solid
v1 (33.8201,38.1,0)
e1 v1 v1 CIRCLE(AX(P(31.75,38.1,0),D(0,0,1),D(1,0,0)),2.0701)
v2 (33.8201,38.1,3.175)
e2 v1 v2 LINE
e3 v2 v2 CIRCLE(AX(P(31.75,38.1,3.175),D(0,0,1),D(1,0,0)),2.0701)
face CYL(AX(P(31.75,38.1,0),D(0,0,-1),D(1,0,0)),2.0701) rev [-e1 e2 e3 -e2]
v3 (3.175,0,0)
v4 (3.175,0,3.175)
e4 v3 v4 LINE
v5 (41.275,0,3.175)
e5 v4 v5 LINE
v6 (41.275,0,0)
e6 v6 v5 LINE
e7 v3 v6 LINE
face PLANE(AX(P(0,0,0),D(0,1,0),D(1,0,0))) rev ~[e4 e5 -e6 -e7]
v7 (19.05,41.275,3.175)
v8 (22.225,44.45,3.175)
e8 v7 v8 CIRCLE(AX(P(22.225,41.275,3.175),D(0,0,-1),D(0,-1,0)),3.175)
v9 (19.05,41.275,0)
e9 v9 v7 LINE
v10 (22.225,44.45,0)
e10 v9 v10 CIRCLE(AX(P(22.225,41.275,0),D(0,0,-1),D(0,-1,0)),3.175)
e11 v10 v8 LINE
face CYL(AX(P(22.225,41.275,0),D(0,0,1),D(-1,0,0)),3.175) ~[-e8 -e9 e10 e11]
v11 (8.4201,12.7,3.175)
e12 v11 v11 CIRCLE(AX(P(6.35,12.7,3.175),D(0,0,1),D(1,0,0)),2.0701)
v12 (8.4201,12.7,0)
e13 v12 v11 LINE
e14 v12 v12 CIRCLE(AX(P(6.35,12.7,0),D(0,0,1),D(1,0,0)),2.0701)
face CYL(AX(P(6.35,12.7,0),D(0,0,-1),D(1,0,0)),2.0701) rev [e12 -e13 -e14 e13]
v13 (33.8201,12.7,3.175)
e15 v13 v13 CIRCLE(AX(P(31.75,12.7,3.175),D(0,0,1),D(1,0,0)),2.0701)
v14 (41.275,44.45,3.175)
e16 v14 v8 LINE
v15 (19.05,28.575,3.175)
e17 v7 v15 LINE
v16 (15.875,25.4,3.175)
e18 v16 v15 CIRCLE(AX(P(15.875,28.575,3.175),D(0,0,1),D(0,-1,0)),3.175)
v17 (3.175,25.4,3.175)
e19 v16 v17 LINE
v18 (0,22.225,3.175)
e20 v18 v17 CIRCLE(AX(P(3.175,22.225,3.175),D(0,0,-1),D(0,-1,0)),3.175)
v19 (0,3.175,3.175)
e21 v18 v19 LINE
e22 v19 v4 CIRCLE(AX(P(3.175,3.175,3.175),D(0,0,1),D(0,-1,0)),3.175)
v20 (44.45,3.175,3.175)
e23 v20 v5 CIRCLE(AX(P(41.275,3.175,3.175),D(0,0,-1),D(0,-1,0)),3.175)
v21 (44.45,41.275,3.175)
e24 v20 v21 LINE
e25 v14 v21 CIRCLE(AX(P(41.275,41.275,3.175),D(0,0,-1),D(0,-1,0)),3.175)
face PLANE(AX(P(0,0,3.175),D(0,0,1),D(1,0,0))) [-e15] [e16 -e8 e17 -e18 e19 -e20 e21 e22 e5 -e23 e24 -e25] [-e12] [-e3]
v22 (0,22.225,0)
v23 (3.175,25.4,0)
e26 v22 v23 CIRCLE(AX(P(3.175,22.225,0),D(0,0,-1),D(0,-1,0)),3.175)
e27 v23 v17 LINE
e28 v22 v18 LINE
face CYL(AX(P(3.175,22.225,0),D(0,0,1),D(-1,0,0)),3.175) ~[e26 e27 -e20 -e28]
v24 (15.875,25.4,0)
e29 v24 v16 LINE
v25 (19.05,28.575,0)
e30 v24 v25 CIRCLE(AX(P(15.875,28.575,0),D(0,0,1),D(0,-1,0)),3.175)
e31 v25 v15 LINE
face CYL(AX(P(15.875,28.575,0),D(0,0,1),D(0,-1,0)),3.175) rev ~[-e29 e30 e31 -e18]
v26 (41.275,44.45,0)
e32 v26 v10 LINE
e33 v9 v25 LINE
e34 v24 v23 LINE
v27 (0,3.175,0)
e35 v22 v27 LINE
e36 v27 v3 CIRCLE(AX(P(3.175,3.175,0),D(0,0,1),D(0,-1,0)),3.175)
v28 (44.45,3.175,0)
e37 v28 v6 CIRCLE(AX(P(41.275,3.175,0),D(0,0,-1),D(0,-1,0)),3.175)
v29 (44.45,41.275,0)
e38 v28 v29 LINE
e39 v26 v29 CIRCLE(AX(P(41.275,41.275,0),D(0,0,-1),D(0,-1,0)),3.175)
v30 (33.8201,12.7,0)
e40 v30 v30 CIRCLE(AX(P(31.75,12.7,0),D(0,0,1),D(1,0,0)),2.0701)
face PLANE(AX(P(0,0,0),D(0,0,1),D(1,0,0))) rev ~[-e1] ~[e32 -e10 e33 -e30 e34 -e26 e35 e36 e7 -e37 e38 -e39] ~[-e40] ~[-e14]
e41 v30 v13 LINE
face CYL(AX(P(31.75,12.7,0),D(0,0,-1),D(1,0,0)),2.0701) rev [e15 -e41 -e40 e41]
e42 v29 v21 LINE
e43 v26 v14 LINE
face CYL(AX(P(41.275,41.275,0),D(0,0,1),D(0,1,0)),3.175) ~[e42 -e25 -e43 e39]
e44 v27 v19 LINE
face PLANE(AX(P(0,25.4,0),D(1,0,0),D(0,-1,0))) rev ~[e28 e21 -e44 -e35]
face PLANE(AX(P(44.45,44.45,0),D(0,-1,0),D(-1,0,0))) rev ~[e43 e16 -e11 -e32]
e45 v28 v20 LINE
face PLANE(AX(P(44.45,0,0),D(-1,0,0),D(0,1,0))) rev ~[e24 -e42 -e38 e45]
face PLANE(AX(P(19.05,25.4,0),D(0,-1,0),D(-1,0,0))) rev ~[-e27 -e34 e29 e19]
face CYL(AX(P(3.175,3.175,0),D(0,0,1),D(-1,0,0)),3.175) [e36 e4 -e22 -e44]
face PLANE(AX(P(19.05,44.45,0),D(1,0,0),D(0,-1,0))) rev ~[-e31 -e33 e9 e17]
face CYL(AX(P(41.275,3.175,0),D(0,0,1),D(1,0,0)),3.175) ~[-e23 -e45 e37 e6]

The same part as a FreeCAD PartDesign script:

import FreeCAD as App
import Part
import Sketcher

V = App.Vector
Q = App.Units.Quantity


def edges_at(feature, points):
    """Names of the edges that pass closest to the given points."""
    edges = feature.Shape.Edges
    near = lambda p: min(range(len(edges)), key=lambda i: edges[i].distToShape(Part.Vertex(*p))[0])
    return sorted({f"Edge{near(p) + 1}" for p in points})


def add_polygon(sketch, points):
    """Adds a closed chain of lines whose ends are joined by coincident constraints."""
    first, n = sketch.GeometryCount, len(points)
    for a, b in zip(points, points[1:] + points[:1]):
        sketch.addGeometry(Part.LineSegment(App.Vector(*a, 0), App.Vector(*b, 0)), False)
    for i in range(n):
        sketch.addConstraint(Sketcher.Constraint("Coincident", first + i, 2, first + (i + 1) % n, 1))

doc = App.newDocument("Part")
params = doc.addObject("Spreadsheet::Sheet", "Params")
for row, (alias, value) in enumerate([
    ("sketch1_width", "1 in"),
    ("sketch1_diameter", "0.163 in"),
    ("sketch1_width2", "1.75 in"),
    ("pad1_length", "0.125 in"),
    ("fillet_radius", "0.125 in"),
], start=1):
    params.set(f"A{row}", alias)
    params.set(f"B{row}", "=" + value)
    params.setAlias(f"B{row}", alias)

body = doc.addObject("PartDesign::Body", "Body")

# Sketch on XY plane
sketch1 = doc.addObject("Sketcher::SketchObject", "Sketch")
body.addObject(sketch1)
sketch1.AttachmentSupport = (doc.XY_Plane, [""])
sketch1.MapMode = "FlatFace"
add_polygon(sketch1, [(0, 25.4), (0, 0), (44.5, 0), (44.5, 44.5), (19.1, 44.5), (19.1, 25.4)])  # lines 0-5
sketch1.addGeometry(Part.Circle(V(6.3, 12.7, 0), V(0, 0, 1), 2.1), False)  # 6
sketch1.addGeometry(Part.Circle(V(31.8, 12.7, 0), V(0, 0, 1), 2.1), False)  # 7
sketch1.addGeometry(Part.Circle(V(31.8, 38.1, 0), V(0, 0, 1), 2.1), False)  # 8
sketch1.addConstraint([
    Sketcher.Constraint("Vertical", 0),
    Sketcher.Constraint("Horizontal", 1),
    Sketcher.Constraint("Vertical", 2),
    Sketcher.Constraint("Horizontal", 3),
    Sketcher.Constraint("Vertical", 4),
    Sketcher.Constraint("Horizontal", 5),
    Sketcher.Constraint("Coincident", 0, 2, -1, 1),
    Sketcher.Constraint("Equal", 6, 7),
    Sketcher.Constraint("Equal", 7, 8),
    Sketcher.Constraint("Horizontal", 6, 3, 7, 3),
    Sketcher.Constraint("Vertical", 7, 3, 8, 3),
    Sketcher.Constraint("Equal", 3, 0),
    Sketcher.Constraint("Equal", 1, 2),
    Sketcher.Constraint("DistanceX", 3, 2, 3, 1, Q("1 in")),
    Sketcher.Constraint("Diameter", 6, Q("0.163 in")),
    Sketcher.Constraint("DistanceX", 6, 3, 7, 3, Q("1 in")),
    Sketcher.Constraint("DistanceY", 7, 3, 8, 3, Q("1 in")),
    Sketcher.Constraint("DistanceX", 1, 1, 1, 2, Q("1.75 in")),
    Sketcher.Constraint("DistanceY", -1, 1, 6, 3, Q("0.5 in")),
    Sketcher.Constraint("DistanceX", 7, 3, 1, 2, Q("0.5 in")),
])
sketch1.setExpression("Constraints[19]", "Params.sketch1_width")
sketch1.setExpression("Constraints[20]", "Params.sketch1_diameter")
sketch1.setExpression("Constraints[23]", "Params.sketch1_width2")
pad1 = doc.addObject("PartDesign::Pad", "Pad")
body.addObject(pad1)
pad1.Profile = sketch1
pad1.setExpression("Length", "Params.pad1_length")
doc.recompute()

fillet = doc.addObject("PartDesign::Fillet", "Fillet")
body.addObject(fillet)
fillet.Base = (pad1, edges_at(pad1, [
    (19.05, 25.4, 1.587),
    (0, 25.4, 1.587),
    (0, 0, 1.587),
    (44.45, 0, 1.587),
    (44.45, 44.45, 1.587),
    (19.05, 44.45, 1.587),
]))
fillet.setExpression("Radius", "Params.fillet_radius")

doc.recompute()
